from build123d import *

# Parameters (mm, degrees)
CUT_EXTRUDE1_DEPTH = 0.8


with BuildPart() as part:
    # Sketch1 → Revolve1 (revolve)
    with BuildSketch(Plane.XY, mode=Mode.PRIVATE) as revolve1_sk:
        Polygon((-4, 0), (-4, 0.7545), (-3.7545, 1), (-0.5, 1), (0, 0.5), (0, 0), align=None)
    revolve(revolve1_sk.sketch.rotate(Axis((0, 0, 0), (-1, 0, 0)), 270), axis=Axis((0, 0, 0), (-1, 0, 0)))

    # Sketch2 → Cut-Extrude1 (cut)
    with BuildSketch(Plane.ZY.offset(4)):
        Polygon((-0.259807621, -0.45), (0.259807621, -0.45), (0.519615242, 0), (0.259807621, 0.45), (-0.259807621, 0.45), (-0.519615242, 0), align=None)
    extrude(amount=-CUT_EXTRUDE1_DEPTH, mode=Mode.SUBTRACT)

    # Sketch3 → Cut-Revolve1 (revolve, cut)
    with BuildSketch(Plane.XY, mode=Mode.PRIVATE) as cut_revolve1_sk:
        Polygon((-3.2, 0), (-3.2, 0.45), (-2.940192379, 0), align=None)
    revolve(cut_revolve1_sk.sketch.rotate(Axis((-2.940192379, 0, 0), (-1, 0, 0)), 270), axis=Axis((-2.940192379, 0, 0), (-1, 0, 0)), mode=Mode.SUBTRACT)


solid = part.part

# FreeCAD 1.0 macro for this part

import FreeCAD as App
import Part
import Sketcher
from FreeCAD import Vector
Q = App.Units.Quantity

doc = App.newDocument("Part")
params = doc.addObject("Spreadsheet::Sheet", "Params")
for row, (alias, value) in enumerate([
    ("sketch1_width", "4 mm"),
    ("sketch1_height", "0.5 mm"),
    ("revolution_angle", "360 deg"),
    ("pocket1_length", "0.8 mm"),
    ("sketch3_height", "0.45 mm"),
    ("groove_angle", "360 deg"),
], start=1):
    params.set(f"A{row}", alias)
    params.set(f"B{row}", "=" + value)
    params.setAlias(f"B{row}", alias)

body = doc.addObject("PartDesign::Body", "Body")

sketch1 = doc.addObject("Sketcher::SketchObject", "Sketch")
body.addObject(sketch1)
sketch1.AttachmentSupport = (doc.XY_Plane, [""])
sketch1.MapMode = "FlatFace"
sketch1.addGeometry([
    Part.LineSegment(Vector(-4, 0.7545, 0), Vector(-4, 0, 0)),
    Part.LineSegment(Vector(-4, 0, 0), Vector(0, 0, 0)),
    Part.LineSegment(Vector(0, 0, 0), Vector(0, 0.5, 0)),
    Part.LineSegment(Vector(0, 0.5, 0), Vector(-0.5, 1, 0)),
    Part.LineSegment(Vector(-0.5, 1, 0), Vector(-3.7545, 1, 0)),
    Part.LineSegment(Vector(-3.7545, 1, 0), Vector(-4, 0.7545, 0)),
], False)
sketch1.addConstraint([
    Sketcher.Constraint("Coincident", 0, 2, 1, 1),
    Sketcher.Constraint("Coincident", 1, 2, 2, 1),
    Sketcher.Constraint("Coincident", 2, 2, 3, 1),
    Sketcher.Constraint("Coincident", 3, 2, 4, 1),
    Sketcher.Constraint("Coincident", 4, 2, 5, 1),
    Sketcher.Constraint("Coincident", 5, 2, 0, 1),
    Sketcher.Constraint("Vertical", 0),
    Sketcher.Constraint("Horizontal", 1),
    Sketcher.Constraint("Vertical", 2),
    Sketcher.Constraint("Horizontal", 4),
    Sketcher.Constraint("Coincident", 1, 2, -1, 1),
    Sketcher.Constraint("Perpendicular", 3, 5),
    Sketcher.Constraint("DistanceX", 1, 1, 1, 2, 4.0),
    Sketcher.Constraint("Angle", 3, Q("135 deg")),
    Sketcher.Constraint("DistanceY", 2, 1, 2, 2, 0.5),
    Sketcher.Constraint("DistanceY", -1, 1, 3, 2, 1.0),
    Sketcher.Constraint("DistanceX", 4, 2, 4, 1, 3.2545),
])
sketch1.setExpression("Constraints[12]", "Params.sketch1_width")
sketch1.setExpression("Constraints[14]", "Params.sketch1_height")
revolution = doc.addObject("PartDesign::Revolution", "Revolution")
body.addObject(revolution)
revolution.Profile = sketch1
revolution.ReferenceAxis = (sketch1, ["H_Axis"])
revolution.setExpression("Angle", "Params.revolution_angle")

sketch2 = doc.addObject("Sketcher::SketchObject", "Sketch001")
body.addObject(sketch2)
sketch2.AttachmentSupport = (doc.YZ_Plane, [""])
sketch2.MapMode = "FlatFace"
sketch2.AttachmentOffset = App.Placement(Vector(0, 0, -4), App.Rotation())
sketch2.addGeometry([
    Part.LineSegment(Vector(-0.45, -0.259808, 0), Vector(-0.45, 0.259808, 0)),
    Part.LineSegment(Vector(-0.45, 0.259808, 0), Vector(0, 0.519615, 0)),
    Part.LineSegment(Vector(0, 0.519615, 0), Vector(0.45, 0.259808, 0)),
    Part.LineSegment(Vector(0.45, 0.259808, 0), Vector(0.45, -0.259808, 0)),
    Part.LineSegment(Vector(0.45, -0.259808, 0), Vector(0, -0.519615, 0)),
    Part.LineSegment(Vector(0, -0.519615, 0), Vector(-0.45, -0.259808, 0)),
], False)
sketch2.addConstraint([
    Sketcher.Constraint("Coincident", 0, 2, 1, 1),
    Sketcher.Constraint("Coincident", 1, 2, 2, 1),
    Sketcher.Constraint("Coincident", 2, 2, 3, 1),
    Sketcher.Constraint("Coincident", 3, 2, 4, 1),
    Sketcher.Constraint("Coincident", 4, 2, 5, 1),
    Sketcher.Constraint("Coincident", 5, 2, 0, 1),
    Sketcher.Constraint("Vertical", 0),
    Sketcher.Constraint("Vertical", 3),
    Sketcher.Constraint("Symmetric", 0, 2, 3, 2, -1, 1),
    Sketcher.Constraint("Symmetric", 1, 2, 4, 2, -1, 1),
    Sketcher.Constraint("PointOnObject", 1, 2, -2),
    Sketcher.Constraint("Parallel", 2, 5),
    Sketcher.Constraint("Horizontal", 0, 2, 2, 2),
    Sketcher.Constraint("Angle", 1, Q("30 deg")),
    Sketcher.Constraint("DistanceX", 0, 2, 2, 2, 0.9),
    Sketcher.Constraint("DistanceY", 0, 1, 0, 2, 0.519615),
])
pocket1 = doc.addObject("PartDesign::Pocket", "Pocket")
body.addObject(pocket1)
pocket1.Profile = sketch2
pocket1.setExpression("Length", "Params.pocket1_length")
pocket1.Reversed = True

sketch3 = doc.addObject("Sketcher::SketchObject", "Sketch002")
body.addObject(sketch3)
sketch3.AttachmentSupport = (doc.XY_Plane, [""])
sketch3.MapMode = "FlatFace"
sketch3.addGeometry([
    Part.LineSegment(Vector(-3.2, 0.45, 0), Vector(-3.2, 0, 0)),
    Part.LineSegment(Vector(-3.2, 0, 0), Vector(-2.940192, 0, 0)),
    Part.LineSegment(Vector(-2.940192, 0, 0), Vector(-3.2, 0.45, 0)),
], False)
sketch3.addConstraint([
    Sketcher.Constraint("Coincident", 0, 2, 1, 1),
    Sketcher.Constraint("Coincident", 1, 2, 2, 1),
    Sketcher.Constraint("Coincident", 2, 2, 0, 1),
    Sketcher.Constraint("Vertical", 0),
    Sketcher.Constraint("Horizontal", 1),
    Sketcher.Constraint("PointOnObject", 0, 2, -1),
    Sketcher.Constraint("Angle", 2, Q("120 deg")),
    Sketcher.Constraint("DistanceY", 0, 2, 0, 1, 0.45),
    Sketcher.Constraint("DistanceX", 0, 2, -1, 1, 3.2),
])
sketch3.setExpression("Constraints[7]", "Params.sketch3_height")
groove = doc.addObject("PartDesign::Groove", "Groove")
body.addObject(groove)
groove.Profile = sketch3
groove.ReferenceAxis = (sketch3, ["H_Axis"])
groove.setExpression("Angle", "Params.groove_angle")

doc.recompute()
